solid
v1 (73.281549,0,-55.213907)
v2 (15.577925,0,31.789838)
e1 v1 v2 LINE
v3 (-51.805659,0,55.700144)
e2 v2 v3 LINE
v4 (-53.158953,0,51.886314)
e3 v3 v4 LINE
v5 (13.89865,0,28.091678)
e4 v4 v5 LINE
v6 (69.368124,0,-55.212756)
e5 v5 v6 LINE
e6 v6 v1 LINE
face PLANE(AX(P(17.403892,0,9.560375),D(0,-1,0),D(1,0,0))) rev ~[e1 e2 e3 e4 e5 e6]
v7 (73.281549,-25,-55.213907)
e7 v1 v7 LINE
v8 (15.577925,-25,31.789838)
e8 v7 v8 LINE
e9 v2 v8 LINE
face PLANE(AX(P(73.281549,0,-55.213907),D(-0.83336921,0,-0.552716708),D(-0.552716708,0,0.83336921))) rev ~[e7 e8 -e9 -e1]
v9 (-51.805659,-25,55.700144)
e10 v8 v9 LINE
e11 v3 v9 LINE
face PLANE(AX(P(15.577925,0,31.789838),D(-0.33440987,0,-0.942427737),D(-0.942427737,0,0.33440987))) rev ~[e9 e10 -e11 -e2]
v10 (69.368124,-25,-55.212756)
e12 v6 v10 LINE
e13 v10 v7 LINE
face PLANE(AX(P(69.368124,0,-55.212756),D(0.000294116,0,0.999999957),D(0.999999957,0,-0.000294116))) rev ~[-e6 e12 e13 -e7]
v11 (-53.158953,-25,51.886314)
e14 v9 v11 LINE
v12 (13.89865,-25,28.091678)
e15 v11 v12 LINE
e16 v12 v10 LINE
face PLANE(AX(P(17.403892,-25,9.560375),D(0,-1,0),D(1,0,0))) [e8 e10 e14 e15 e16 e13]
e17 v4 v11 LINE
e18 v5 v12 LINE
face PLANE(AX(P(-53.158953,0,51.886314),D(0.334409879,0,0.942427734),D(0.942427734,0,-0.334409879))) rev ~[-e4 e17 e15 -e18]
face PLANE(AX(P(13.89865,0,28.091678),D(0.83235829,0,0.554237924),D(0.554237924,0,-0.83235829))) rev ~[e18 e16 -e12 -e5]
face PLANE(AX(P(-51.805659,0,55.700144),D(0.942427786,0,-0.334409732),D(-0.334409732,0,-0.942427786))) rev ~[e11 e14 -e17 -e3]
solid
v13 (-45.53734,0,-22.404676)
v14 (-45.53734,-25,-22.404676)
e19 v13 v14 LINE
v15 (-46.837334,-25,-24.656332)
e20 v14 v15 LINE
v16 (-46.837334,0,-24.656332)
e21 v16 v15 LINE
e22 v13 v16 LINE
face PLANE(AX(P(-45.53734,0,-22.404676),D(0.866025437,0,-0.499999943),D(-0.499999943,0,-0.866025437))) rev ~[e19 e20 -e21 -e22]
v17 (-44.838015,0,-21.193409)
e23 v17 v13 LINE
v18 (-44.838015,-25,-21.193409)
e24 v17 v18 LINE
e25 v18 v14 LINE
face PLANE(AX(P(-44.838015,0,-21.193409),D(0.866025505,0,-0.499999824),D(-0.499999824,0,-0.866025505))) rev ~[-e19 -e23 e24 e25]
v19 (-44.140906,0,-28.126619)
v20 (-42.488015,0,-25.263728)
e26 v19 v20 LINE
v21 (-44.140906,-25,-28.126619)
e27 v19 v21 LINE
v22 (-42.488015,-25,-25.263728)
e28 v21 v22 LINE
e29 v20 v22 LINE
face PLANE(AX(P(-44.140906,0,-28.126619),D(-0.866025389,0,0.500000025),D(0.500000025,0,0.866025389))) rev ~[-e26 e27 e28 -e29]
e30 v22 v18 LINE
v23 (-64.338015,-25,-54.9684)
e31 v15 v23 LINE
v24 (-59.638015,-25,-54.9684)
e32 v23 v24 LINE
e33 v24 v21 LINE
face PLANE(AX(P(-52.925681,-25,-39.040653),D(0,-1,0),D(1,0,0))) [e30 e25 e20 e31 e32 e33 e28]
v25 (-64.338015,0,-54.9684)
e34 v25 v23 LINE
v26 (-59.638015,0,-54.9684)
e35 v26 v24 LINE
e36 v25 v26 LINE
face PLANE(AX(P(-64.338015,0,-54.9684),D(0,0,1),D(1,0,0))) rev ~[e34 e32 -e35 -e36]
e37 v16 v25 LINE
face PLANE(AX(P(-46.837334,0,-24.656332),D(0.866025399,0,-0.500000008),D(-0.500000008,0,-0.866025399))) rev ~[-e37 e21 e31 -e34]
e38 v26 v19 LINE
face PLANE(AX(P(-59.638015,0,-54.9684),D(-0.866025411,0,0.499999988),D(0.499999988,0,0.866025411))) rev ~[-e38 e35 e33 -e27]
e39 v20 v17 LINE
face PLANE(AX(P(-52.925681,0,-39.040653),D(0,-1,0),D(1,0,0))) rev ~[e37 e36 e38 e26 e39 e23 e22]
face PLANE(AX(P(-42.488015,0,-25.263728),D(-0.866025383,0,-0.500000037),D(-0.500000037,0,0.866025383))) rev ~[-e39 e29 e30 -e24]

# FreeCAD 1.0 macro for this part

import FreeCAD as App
import Part
import Sketcher
Q = App.Units.Quantity


def add_polygon(sketch, points):
    """Adds a closed chain of lines whose ends are joined by coincident constraints."""
    first, n = sketch.GeometryCount, len(points)
    for a, b in zip(points, points[1:] + points[:1]):
        sketch.addGeometry(Part.LineSegment(App.Vector(*a, 0), App.Vector(*b, 0)), False)
    for i in range(n):
        sketch.addConstraint(Sketcher.Constraint("Coincident", first + i, 2, first + (i + 1) % n, 1))

doc = App.newDocument("Part")
body = doc.addObject("PartDesign::Body", "Body")
body.AllowCompound = True

sketch1 = doc.addObject("Sketcher::SketchObject", "Sketch")
body.addObject(sketch1)
sketch1.AttachmentSupport = (doc.XZ_Plane, [""])
sketch1.MapMode = "FlatFace"
add_polygon(sketch1, [(13.9, 28.1), (69.4, -55.2), (73.3, -55.2), (15.6, 31.8), (-51.8, 55.7), (-53.2, 51.9)])
add_polygon(sketch1, [(-64.3, -55), (-59.6, -55), (-44.1, -28.1), (-42.5, -25.3), (-44.8, -21.2), (-45.5, -22.4), (-46.8, -24.7)])
sketch1.addConstraint(Sketcher.Constraint("Horizontal", 6))
sketch1.addConstraint(Sketcher.Constraint("Perpendicular", 3, 4))
sketch1.addConstraint(Sketcher.Constraint("Perpendicular", 4, 5))
sketch1.addConstraint(Sketcher.Constraint("Parallel", 7, 8))
sketch1.addConstraint(Sketcher.Constraint("Parallel", 8, 10))
sketch1.addConstraint(Sketcher.Constraint("Parallel", 10, 11))
sketch1.addConstraint(Sketcher.Constraint("Parallel", 11, 12))
sketch1.addConstraint(Sketcher.Constraint("Angle", 7, Q("60.000001 deg")))
sketch1.addConstraint(Sketcher.Constraint("Angle", 9, Q("120.000002 deg")))
sketch1.addConstraint(Sketcher.Constraint("DistanceX", 6, 1, 6, 2, 4.7))
sketch1.addConstraint(Sketcher.Constraint("Distance", 2, 104.399999))
sketch1.addConstraint(Sketcher.Constraint("Distance", 3, 71.500001))
sketch1.addConstraint(Sketcher.Constraint("DistanceX", 6, 2, 9, 2, 14.8))
sketch1.addConstraint(Sketcher.Constraint("DistanceY", 6, 2, -1, 1, 54.9684))
sketch1.addConstraint(Sketcher.Constraint("DistanceX", 2, 2, 0, 2, 53.790199))
sketch1.addConstraint(Sketcher.Constraint("DistanceY", 0, 2, 3, 2, 110.9129))
sketch1.addConstraint(Sketcher.Constraint("DistanceX", 4, 2, 1, 2, 126.440502))
sketch1.addConstraint(Sketcher.Constraint("DistanceX", 5, 2, 1, 2, 59.382899))
sketch1.addConstraint(Sketcher.Constraint("Distance", 7, 30.994219))
sketch1.addConstraint(Sketcher.Constraint("Distance", 10, 1.39865))
sketch1.addConstraint(Sketcher.Constraint("Distance", 11, 2.599988))
sketch1.addConstraint(Sketcher.Constraint("DistanceX", -1, 1, 1, 2, 73.281549))
sketch1.addConstraint(Sketcher.Constraint("DistanceX", 3, 2, -1, 1, 51.805659))
sketch1.addConstraint(Sketcher.Constraint("DistanceY", -1, 1, 5, 2, 28.091678))
sketch1.addConstraint(Sketcher.Constraint("DistanceX", 10, 2, -1, 1, 45.53734))
sketch1.addConstraint(Sketcher.Constraint("DistanceY", 1, 2, 0, 2, 0.001151))
pad1 = doc.addObject("PartDesign::Pad", "Pad")
body.addObject(pad1)
pad1.Profile = sketch1
pad1.Length = 25

doc.recompute()
